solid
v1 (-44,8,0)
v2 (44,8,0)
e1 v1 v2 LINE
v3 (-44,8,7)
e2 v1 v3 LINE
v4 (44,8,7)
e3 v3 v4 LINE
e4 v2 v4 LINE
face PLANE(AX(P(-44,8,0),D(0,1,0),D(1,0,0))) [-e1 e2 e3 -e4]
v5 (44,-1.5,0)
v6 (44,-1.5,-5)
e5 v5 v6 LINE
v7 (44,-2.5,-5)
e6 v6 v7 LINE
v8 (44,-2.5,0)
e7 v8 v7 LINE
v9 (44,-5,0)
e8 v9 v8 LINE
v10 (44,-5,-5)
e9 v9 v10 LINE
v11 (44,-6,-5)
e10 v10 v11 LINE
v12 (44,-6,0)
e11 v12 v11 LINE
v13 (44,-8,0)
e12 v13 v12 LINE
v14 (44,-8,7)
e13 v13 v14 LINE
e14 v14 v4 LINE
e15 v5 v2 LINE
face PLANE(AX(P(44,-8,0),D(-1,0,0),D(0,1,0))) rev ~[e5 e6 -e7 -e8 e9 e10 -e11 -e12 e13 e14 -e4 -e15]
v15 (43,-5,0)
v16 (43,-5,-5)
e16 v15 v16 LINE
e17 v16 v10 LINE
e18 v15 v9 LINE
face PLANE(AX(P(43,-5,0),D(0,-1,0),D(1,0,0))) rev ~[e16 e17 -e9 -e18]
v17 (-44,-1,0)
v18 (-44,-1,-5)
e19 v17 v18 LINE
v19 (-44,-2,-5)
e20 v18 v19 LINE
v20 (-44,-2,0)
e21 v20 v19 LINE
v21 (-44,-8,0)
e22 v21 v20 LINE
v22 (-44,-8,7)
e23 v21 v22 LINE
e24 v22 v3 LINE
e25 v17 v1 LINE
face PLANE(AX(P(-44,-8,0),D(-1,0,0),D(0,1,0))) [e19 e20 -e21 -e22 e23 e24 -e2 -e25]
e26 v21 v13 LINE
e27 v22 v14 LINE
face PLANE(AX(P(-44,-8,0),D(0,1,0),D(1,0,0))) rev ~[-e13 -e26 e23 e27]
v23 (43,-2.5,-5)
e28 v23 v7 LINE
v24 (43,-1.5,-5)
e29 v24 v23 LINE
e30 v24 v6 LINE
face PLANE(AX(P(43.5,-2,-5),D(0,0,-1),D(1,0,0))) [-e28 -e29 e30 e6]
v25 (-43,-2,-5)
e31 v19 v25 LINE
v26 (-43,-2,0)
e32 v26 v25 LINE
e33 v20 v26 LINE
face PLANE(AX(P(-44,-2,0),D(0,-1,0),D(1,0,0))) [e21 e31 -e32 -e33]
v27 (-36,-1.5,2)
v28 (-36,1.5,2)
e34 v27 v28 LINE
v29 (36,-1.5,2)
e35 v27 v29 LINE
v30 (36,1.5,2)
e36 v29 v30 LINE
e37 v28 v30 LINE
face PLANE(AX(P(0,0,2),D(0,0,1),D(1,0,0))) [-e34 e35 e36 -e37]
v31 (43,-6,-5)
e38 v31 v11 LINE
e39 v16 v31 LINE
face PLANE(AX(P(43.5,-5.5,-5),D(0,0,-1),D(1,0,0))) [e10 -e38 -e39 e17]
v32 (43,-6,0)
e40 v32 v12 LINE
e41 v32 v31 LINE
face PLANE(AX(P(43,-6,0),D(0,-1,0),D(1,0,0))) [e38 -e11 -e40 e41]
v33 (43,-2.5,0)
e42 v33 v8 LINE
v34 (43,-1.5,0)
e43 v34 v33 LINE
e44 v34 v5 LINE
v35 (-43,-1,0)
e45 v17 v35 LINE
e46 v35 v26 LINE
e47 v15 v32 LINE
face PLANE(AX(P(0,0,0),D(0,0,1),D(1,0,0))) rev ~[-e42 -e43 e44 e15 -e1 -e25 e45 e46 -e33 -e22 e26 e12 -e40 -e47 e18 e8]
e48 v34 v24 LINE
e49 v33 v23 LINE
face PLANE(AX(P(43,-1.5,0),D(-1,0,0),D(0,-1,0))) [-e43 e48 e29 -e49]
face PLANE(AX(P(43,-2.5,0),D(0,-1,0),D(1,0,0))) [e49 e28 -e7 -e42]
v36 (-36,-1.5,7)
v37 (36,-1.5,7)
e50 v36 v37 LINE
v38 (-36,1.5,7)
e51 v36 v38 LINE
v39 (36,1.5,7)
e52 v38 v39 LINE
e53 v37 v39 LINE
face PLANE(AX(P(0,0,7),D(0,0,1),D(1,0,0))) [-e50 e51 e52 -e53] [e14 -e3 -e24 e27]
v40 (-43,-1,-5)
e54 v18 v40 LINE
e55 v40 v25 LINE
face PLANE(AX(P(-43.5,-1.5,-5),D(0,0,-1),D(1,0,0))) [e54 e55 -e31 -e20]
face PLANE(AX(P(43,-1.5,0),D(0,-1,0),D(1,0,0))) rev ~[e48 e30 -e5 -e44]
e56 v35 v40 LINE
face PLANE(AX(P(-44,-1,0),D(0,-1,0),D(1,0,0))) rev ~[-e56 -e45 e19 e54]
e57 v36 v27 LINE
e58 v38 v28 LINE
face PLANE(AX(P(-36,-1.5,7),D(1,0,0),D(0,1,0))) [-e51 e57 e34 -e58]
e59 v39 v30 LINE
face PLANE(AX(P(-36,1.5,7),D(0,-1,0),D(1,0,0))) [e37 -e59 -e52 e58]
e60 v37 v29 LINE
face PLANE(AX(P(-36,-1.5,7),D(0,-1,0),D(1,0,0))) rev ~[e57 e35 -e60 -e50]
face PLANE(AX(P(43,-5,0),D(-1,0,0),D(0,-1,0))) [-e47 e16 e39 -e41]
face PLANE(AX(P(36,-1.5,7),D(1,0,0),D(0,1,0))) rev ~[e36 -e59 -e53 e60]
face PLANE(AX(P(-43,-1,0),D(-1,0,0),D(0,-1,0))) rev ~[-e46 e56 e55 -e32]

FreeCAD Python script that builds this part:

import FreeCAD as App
import Part
import Sketcher

V = App.Vector

doc = App.newDocument("Part")
params = doc.addObject("Spreadsheet::Sheet", "Params")
for row, (alias, value) in enumerate([
    ("sketch1_width", "88 mm"),
    ("sketch1_height", "16 mm"),
    ("pad1_length", "7 mm"),
    ("sketch2_width", "72 mm"),
    ("sketch2_height", "3 mm"),
    ("pocket1_length", "5 mm"),
    ("sketch3_width", "1 mm"),
    ("pad2_length", "5 mm"),
], start=1):
    params.set(f"A{row}", alias)
    params.set(f"B{row}", "=" + value)
    params.setAlias(f"B{row}", alias)

body = doc.addObject("PartDesign::Body", "Body")

# Sketch on XY plane
sketch1 = body.newObject("Sketcher::SketchObject", "Sketch")
sketch1.AttachmentSupport = (doc.getObject("XY_Plane"), [""])
sketch1.MapMode = "FlatFace"
sketch1.addGeometry([
    Part.LineSegment(V(-44, 8, 0), V(-44, -8, 0)),
    Part.LineSegment(V(-44, -8, 0), V(44, -8, 0)),
    Part.LineSegment(V(44, -8, 0), V(44, 8, 0)),
    Part.LineSegment(V(44, 8, 0), V(-44, 8, 0)),
], False)
sketch1.addConstraint([
    Sketcher.Constraint("Coincident", 0, 2, 1, 1),
    Sketcher.Constraint("Coincident", 1, 2, 2, 1),
    Sketcher.Constraint("Coincident", 2, 2, 3, 1),
    Sketcher.Constraint("Coincident", 3, 2, 0, 1),
    Sketcher.Constraint("Vertical", 0),
    Sketcher.Constraint("Horizontal", 1),
    Sketcher.Constraint("Vertical", 2),
    Sketcher.Constraint("Horizontal", 3),
    Sketcher.Constraint("Symmetric", 0, 2, 2, 2, -1, 1),
    Sketcher.Constraint("DistanceX", 1, 1, 1, 2, 88.0),
    Sketcher.Constraint("DistanceY", 0, 2, 0, 1, 16.0),
])
sketch1.setExpression("Constraints[9]", "Params.sketch1_width")
sketch1.setExpression("Constraints[10]", "Params.sketch1_height")
pad1 = body.newObject("PartDesign::Pad", "Pad")
pad1.Profile = sketch1
pad1.setExpression("Length", "Params.pad1_length")

# Sketch on XY plane
sketch2 = body.newObject("Sketcher::SketchObject", "Sketch001")
sketch2.AttachmentSupport = (doc.getObject("XY_Plane"), [""])
sketch2.MapMode = "FlatFace"
sketch2.AttachmentOffset = App.Placement(V(0, 0, 7), App.Rotation())
sketch2.addGeometry([
    Part.LineSegment(V(-36, 1.5, 0), V(-36, -1.5, 0)),
    Part.LineSegment(V(-36, -1.5, 0), V(36, -1.5, 0)),
    Part.LineSegment(V(36, -1.5, 0), V(36, 1.5, 0)),
    Part.LineSegment(V(36, 1.5, 0), V(-36, 1.5, 0)),
], False)
sketch2.addConstraint([
    Sketcher.Constraint("Coincident", 0, 2, 1, 1),
    Sketcher.Constraint("Coincident", 1, 2, 2, 1),
    Sketcher.Constraint("Coincident", 2, 2, 3, 1),
    Sketcher.Constraint("Coincident", 3, 2, 0, 1),
    Sketcher.Constraint("Vertical", 0),
    Sketcher.Constraint("Horizontal", 1),
    Sketcher.Constraint("Vertical", 2),
    Sketcher.Constraint("Horizontal", 3),
    Sketcher.Constraint("Symmetric", 0, 2, 2, 2, -1, 1),
    Sketcher.Constraint("DistanceX", 1, 1, 1, 2, 72.0),
    Sketcher.Constraint("DistanceY", 0, 2, 0, 1, 3.0),
])
sketch2.setExpression("Constraints[9]", "Params.sketch2_width")
sketch2.setExpression("Constraints[10]", "Params.sketch2_height")
pocket1 = body.newObject("PartDesign::Pocket", "Pocket")
pocket1.Profile = sketch2
pocket1.setExpression("Length", "Params.pocket1_length")

# Sketch on XY plane
sketch3 = body.newObject("Sketcher::SketchObject", "Sketch002")
sketch3.AttachmentSupport = (doc.getObject("XY_Plane"), [""])
sketch3.MapMode = "FlatFace"
sketch3.addGeometry([
    Part.LineSegment(V(-44, -2, 0), V(-44, -1, 0)),  # 0
    Part.LineSegment(V(-44, -1, 0), V(-43, -1, 0)),  # 1
    Part.LineSegment(V(-43, -1, 0), V(-43, -2, 0)),  # 2
    Part.LineSegment(V(-43, -2, 0), V(-44, -2, 0)),  # 3
    Part.LineSegment(V(43, -6, 0), V(43, -5, 0)),  # 4
    Part.LineSegment(V(43, -5, 0), V(44, -5, 0)),  # 5
    Part.LineSegment(V(44, -5, 0), V(44, -6, 0)),  # 6
    Part.LineSegment(V(44, -6, 0), V(43, -6, 0)),  # 7
    Part.LineSegment(V(43, -2.5, 0), V(43, -1.5, 0)),  # 8
    Part.LineSegment(V(43, -1.5, 0), V(44, -1.5, 0)),  # 9
    Part.LineSegment(V(44, -1.5, 0), V(44, -2.5, 0)),  # 10
    Part.LineSegment(V(44, -2.5, 0), V(43, -2.5, 0)),  # 11
], False)
sketch3.addConstraint([
    Sketcher.Constraint("Coincident", 0, 2, 1, 1),
    Sketcher.Constraint("Coincident", 1, 2, 2, 1),
    Sketcher.Constraint("Coincident", 2, 2, 3, 1),
    Sketcher.Constraint("Coincident", 3, 2, 0, 1),
    Sketcher.Constraint("Coincident", 4, 2, 5, 1),
    Sketcher.Constraint("Coincident", 5, 2, 6, 1),
    Sketcher.Constraint("Coincident", 6, 2, 7, 1),
    Sketcher.Constraint("Coincident", 7, 2, 4, 1),
    Sketcher.Constraint("Coincident", 8, 2, 9, 1),
    Sketcher.Constraint("Coincident", 9, 2, 10, 1),
    Sketcher.Constraint("Coincident", 10, 2, 11, 1),
    Sketcher.Constraint("Coincident", 11, 2, 8, 1),
    Sketcher.Constraint("Vertical", 0),
    Sketcher.Constraint("Horizontal", 1),
    Sketcher.Constraint("Vertical", 2),
    Sketcher.Constraint("Horizontal", 3),
    Sketcher.Constraint("Vertical", 4),
    Sketcher.Constraint("Horizontal", 5),
    Sketcher.Constraint("Vertical", 6),
    Sketcher.Constraint("Horizontal", 7),
    Sketcher.Constraint("Vertical", 8),
    Sketcher.Constraint("Horizontal", 9),
    Sketcher.Constraint("Vertical", 10),
    Sketcher.Constraint("Horizontal", 11),
    Sketcher.Constraint("Vertical", 7, 2, 8, 2),
    Sketcher.Constraint("Vertical", 6, 2, 9, 2),
    Sketcher.Constraint("Equal", 3, 5),
    Sketcher.Constraint("Equal", 11, 0),
    Sketcher.Constraint("Equal", 2, 4),
    Sketcher.Constraint("Equal", 6, 8),
    Sketcher.Constraint("DistanceX", 1, 1, 1, 2, 1.0),
    Sketcher.Constraint("DistanceX", 0, 2, -1, 1, 44.0),
    Sketcher.Constraint("DistanceY", 0, 2, -1, 1, 1.0),
    Sketcher.Constraint("DistanceX", -1, 1, 4, 2, 43.0),
    Sketcher.Constraint("DistanceY", 4, 2, -1, 1, 5.0),
    Sketcher.Constraint("DistanceY", 8, 2, -1, 1, 1.5),
])
sketch3.setExpression("Constraints[30]", "Params.sketch3_width")
pad2 = body.newObject("PartDesign::Pad", "Pad001")
pad2.Profile = sketch3
pad2.setExpression("Length", "Params.pad2_length")
pad2.Reversed = True

doc.recompute()
